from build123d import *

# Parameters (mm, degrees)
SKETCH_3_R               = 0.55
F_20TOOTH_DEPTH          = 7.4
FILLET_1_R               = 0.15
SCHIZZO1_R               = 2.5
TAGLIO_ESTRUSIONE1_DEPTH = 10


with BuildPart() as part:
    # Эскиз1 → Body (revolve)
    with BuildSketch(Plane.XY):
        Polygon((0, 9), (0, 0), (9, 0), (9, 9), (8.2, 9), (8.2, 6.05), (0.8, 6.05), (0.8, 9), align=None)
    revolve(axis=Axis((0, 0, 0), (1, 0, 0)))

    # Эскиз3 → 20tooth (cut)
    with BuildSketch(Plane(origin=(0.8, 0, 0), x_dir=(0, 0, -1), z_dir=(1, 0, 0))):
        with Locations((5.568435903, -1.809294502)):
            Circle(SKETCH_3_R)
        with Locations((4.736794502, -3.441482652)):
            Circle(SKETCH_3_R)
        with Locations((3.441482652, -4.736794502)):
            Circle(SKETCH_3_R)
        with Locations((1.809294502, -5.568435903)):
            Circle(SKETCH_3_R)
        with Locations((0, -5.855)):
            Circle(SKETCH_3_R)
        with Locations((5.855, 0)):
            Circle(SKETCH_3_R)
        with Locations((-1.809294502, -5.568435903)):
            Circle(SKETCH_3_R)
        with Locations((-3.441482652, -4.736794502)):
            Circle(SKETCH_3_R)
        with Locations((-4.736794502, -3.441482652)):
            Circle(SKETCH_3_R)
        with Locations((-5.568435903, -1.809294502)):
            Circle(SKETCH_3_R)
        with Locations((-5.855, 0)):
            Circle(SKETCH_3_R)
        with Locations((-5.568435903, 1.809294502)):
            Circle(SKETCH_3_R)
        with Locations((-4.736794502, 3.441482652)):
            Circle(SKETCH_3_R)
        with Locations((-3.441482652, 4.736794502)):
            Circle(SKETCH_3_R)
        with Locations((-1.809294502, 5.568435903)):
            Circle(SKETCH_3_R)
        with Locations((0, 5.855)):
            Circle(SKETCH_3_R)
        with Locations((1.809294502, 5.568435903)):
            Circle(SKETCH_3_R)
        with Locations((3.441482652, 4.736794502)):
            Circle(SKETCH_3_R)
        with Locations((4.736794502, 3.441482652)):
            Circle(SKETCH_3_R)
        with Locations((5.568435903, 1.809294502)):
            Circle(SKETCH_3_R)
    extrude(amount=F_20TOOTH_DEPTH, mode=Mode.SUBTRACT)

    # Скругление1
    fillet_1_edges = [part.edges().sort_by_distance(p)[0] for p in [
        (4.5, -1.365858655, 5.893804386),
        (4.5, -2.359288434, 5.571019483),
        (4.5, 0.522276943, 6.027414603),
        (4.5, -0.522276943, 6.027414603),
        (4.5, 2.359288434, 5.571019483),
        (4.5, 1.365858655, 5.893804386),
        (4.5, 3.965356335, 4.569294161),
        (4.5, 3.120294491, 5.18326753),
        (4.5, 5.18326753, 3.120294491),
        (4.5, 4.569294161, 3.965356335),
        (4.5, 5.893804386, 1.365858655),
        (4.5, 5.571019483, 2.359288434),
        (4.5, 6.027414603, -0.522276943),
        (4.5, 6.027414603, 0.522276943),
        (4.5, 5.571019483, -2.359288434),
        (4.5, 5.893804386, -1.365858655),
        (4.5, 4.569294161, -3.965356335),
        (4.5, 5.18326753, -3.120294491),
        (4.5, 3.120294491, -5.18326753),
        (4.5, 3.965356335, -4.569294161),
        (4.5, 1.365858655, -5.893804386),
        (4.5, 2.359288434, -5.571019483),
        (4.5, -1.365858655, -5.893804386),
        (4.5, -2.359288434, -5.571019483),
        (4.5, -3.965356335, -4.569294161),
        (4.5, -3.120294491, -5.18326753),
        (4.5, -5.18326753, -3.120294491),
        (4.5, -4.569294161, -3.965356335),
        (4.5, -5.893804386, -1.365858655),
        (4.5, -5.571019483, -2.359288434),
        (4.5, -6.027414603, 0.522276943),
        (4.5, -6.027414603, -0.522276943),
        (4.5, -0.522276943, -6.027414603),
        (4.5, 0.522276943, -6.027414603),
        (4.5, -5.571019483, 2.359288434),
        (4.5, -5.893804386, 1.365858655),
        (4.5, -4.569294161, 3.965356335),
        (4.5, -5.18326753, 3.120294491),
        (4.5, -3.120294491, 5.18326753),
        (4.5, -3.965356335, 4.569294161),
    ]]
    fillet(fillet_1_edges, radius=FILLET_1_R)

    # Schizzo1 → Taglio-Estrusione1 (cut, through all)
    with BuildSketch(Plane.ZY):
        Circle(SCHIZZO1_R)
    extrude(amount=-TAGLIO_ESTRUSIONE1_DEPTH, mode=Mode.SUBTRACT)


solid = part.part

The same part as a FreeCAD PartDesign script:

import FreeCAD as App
import Part
import Sketcher

V = App.Vector
Q = App.Units.Quantity


def edges_at(feature, points):
    """Names of the edges that pass closest to the given points."""
    edges = feature.Shape.Edges
    near = lambda p: min(range(len(edges)), key=lambda i: edges[i].distToShape(Part.Vertex(*p))[0])
    return sorted({f"Edge{near(p) + 1}" for p in points})

doc = App.newDocument("Part")
body = doc.addObject("PartDesign::Body", "Body")

# Sketch on XY plane
sketch1 = doc.addObject("Sketcher::SketchObject", "Sketch")
body.addObject(sketch1)
sketch1.AttachmentSupport = (doc.XY_Plane, [""])
sketch1.MapMode = "FlatFace"
sketch1.addGeometry(Part.LineSegment(V(0, 9, 0), V(0, 0, 0)), False)
sketch1.addGeometry(Part.LineSegment(V(0, 0, 0), V(9, 0, 0)), False)
sketch1.addGeometry(Part.LineSegment(V(9, 0, 0), V(9, 9, 0)), False)
sketch1.addGeometry(Part.LineSegment(V(9, 9, 0), V(8.2, 9, 0)), False)
sketch1.addGeometry(Part.LineSegment(V(8.2, 9, 0), V(8.2, 6, 0)), False)
sketch1.addGeometry(Part.LineSegment(V(8.2, 6, 0), V(0.8, 6, 0)), False)
sketch1.addGeometry(Part.LineSegment(V(0.8, 6, 0), V(0.8, 9, 0)), False)
sketch1.addGeometry(Part.LineSegment(V(0.8, 9, 0), V(0, 9, 0)), False)
sketch1.addConstraint(Sketcher.Constraint("Coincident", 0, 2, 1, 1))
sketch1.addConstraint(Sketcher.Constraint("Coincident", 1, 2, 2, 1))
sketch1.addConstraint(Sketcher.Constraint("Coincident", 2, 2, 3, 1))
sketch1.addConstraint(Sketcher.Constraint("Coincident", 3, 2, 4, 1))
sketch1.addConstraint(Sketcher.Constraint("Coincident", 4, 2, 5, 1))
sketch1.addConstraint(Sketcher.Constraint("Coincident", 5, 2, 6, 1))
sketch1.addConstraint(Sketcher.Constraint("Coincident", 6, 2, 7, 1))
sketch1.addConstraint(Sketcher.Constraint("Coincident", 7, 2, 0, 1))
sketch1.addConstraint(Sketcher.Constraint("Vertical", 0))
sketch1.addConstraint(Sketcher.Constraint("Horizontal", 1))
sketch1.addConstraint(Sketcher.Constraint("Vertical", 2))
sketch1.addConstraint(Sketcher.Constraint("Horizontal", 3))
sketch1.addConstraint(Sketcher.Constraint("Vertical", 4))
sketch1.addConstraint(Sketcher.Constraint("Horizontal", 5))
sketch1.addConstraint(Sketcher.Constraint("Vertical", 6))
sketch1.addConstraint(Sketcher.Constraint("Horizontal", 7))
sketch1.addConstraint(Sketcher.Constraint("Coincident", 0, 2, -1, 1))
sketch1.addConstraint(Sketcher.Constraint("Horizontal", 3, 2, 6, 2))
sketch1.addConstraint(Sketcher.Constraint("Equal", 3, 7))
sketch1.addConstraint(Sketcher.Constraint("Equal", 1, 0))
sketch1.addConstraint(Sketcher.Constraint("DistanceX", 1, 1, 1, 2, Q("9 mm")))
sketch1.addConstraint(Sketcher.Constraint("DistanceX", 3, 2, 3, 1, Q("0.8 mm")))
sketch1.addConstraint(Sketcher.Constraint("DistanceY", 4, 2, 4, 1, Q("2.95 mm")))
revolution = doc.addObject("PartDesign::Revolution", "Revolution")
body.addObject(revolution)
revolution.Profile = sketch1
revolution.ReferenceAxis = (sketch1, ["H_Axis"])
revolution.Angle = 360

# Sketch on YZ plane
sketch2 = doc.addObject("Sketcher::SketchObject", "Sketch001")
body.addObject(sketch2)
sketch2.AttachmentSupport = (doc.YZ_Plane, [""])
sketch2.MapMode = "FlatFace"
sketch2.AttachmentOffset = App.Placement(V(0, 0, 0.8), App.Rotation())
sketch2.addGeometry(Part.Circle(V(-1.8, -5.6, 0), V(0, 0, 1), 0.6), False)
sketch2.addGeometry(Part.Circle(V(-3.4, -4.7, 0), V(0, 0, 1), 0.6), False)
sketch2.addGeometry(Part.Circle(V(-4.7, -3.4, 0), V(0, 0, 1), 0.6), False)
sketch2.addGeometry(Part.Circle(V(-5.6, -1.8, 0), V(0, 0, 1), 0.6), False)
sketch2.addGeometry(Part.Circle(V(-5.9, 0, 0), V(0, 0, 1), 0.6), False)
sketch2.addGeometry(Part.Circle(V(0, -5.9, 0), V(0, 0, 1), 0.6), False)
sketch2.addGeometry(Part.Circle(V(-5.6, 1.8, 0), V(0, 0, 1), 0.6), False)
sketch2.addGeometry(Part.Circle(V(-4.7, 3.4, 0), V(0, 0, 1), 0.6), False)
sketch2.addGeometry(Part.Circle(V(-3.4, 4.7, 0), V(0, 0, 1), 0.6), False)
sketch2.addGeometry(Part.Circle(V(-1.8, 5.6, 0), V(0, 0, 1), 0.6), False)
sketch2.addGeometry(Part.Circle(V(0, 5.9, 0), V(0, 0, 1), 0.6), False)
sketch2.addGeometry(Part.Circle(V(1.8, 5.6, 0), V(0, 0, 1), 0.6), False)
sketch2.addGeometry(Part.Circle(V(3.4, 4.7, 0), V(0, 0, 1), 0.6), False)
sketch2.addGeometry(Part.Circle(V(4.7, 3.4, 0), V(0, 0, 1), 0.6), False)
sketch2.addGeometry(Part.Circle(V(5.6, 1.8, 0), V(0, 0, 1), 0.6), False)
sketch2.addGeometry(Part.Circle(V(5.9, 0, 0), V(0, 0, 1), 0.6), False)
sketch2.addGeometry(Part.Circle(V(5.6, -1.8, 0), V(0, 0, 1), 0.6), False)
sketch2.addGeometry(Part.Circle(V(4.7, -3.4, 0), V(0, 0, 1), 0.6), False)
sketch2.addGeometry(Part.Circle(V(3.4, -4.7, 0), V(0, 0, 1), 0.6), False)
sketch2.addGeometry(Part.Circle(V(1.8, -5.6, 0), V(0, 0, 1), 0.6), False)
sketch2.addConstraint(Sketcher.Constraint("Equal", 0, 1))
sketch2.addConstraint(Sketcher.Constraint("Equal", 1, 2))
sketch2.addConstraint(Sketcher.Constraint("Equal", 2, 3))
sketch2.addConstraint(Sketcher.Constraint("Equal", 3, 4))
sketch2.addConstraint(Sketcher.Constraint("Equal", 4, 5))
sketch2.addConstraint(Sketcher.Constraint("Equal", 5, 6))
sketch2.addConstraint(Sketcher.Constraint("Equal", 6, 7))
sketch2.addConstraint(Sketcher.Constraint("Equal", 7, 8))
sketch2.addConstraint(Sketcher.Constraint("Equal", 8, 9))
sketch2.addConstraint(Sketcher.Constraint("Equal", 9, 10))
sketch2.addConstraint(Sketcher.Constraint("Equal", 10, 11))
sketch2.addConstraint(Sketcher.Constraint("Equal", 11, 12))
sketch2.addConstraint(Sketcher.Constraint("Equal", 12, 13))
sketch2.addConstraint(Sketcher.Constraint("Equal", 13, 14))
sketch2.addConstraint(Sketcher.Constraint("Equal", 14, 15))
sketch2.addConstraint(Sketcher.Constraint("Equal", 15, 16))
sketch2.addConstraint(Sketcher.Constraint("Equal", 16, 17))
sketch2.addConstraint(Sketcher.Constraint("Equal", 17, 18))
sketch2.addConstraint(Sketcher.Constraint("Equal", 18, 19))
sketch2.addConstraint(Sketcher.Constraint("Symmetric", 5, 3, 10, 3, -1, 1))
sketch2.addConstraint(Sketcher.Constraint("Symmetric", 0, 3, 11, 3, -1, 1))
sketch2.addConstraint(Sketcher.Constraint("Symmetric", 1, 3, 12, 3, -1, 1))
sketch2.addConstraint(Sketcher.Constraint("Symmetric", 2, 3, 13, 3, -1, 1))
sketch2.addConstraint(Sketcher.Constraint("Symmetric", 3, 3, 14, 3, -1, 1))
sketch2.addConstraint(Sketcher.Constraint("Symmetric", 4, 3, 15, 3, -1, 1))
sketch2.addConstraint(Sketcher.Constraint("Symmetric", 6, 3, 16, 3, -1, 1))
sketch2.addConstraint(Sketcher.Constraint("Symmetric", 7, 3, 17, 3, -1, 1))
sketch2.addConstraint(Sketcher.Constraint("Symmetric", 8, 3, 18, 3, -1, 1))
sketch2.addConstraint(Sketcher.Constraint("Symmetric", 9, 3, 19, 3, -1, 1))
sketch2.addConstraint(Sketcher.Constraint("Symmetric", 9, 3, 11, 3, -2))
sketch2.addConstraint(Sketcher.Constraint("Symmetric", 8, 3, 12, 3, -2))
sketch2.addConstraint(Sketcher.Constraint("Symmetric", 7, 3, 13, 3, -2))
sketch2.addConstraint(Sketcher.Constraint("Symmetric", 6, 3, 14, 3, -2))
sketch2.addConstraint(Sketcher.Constraint("PointOnObject", 4, 3, -1))
sketch2.addConstraint(Sketcher.Constraint("PointOnObject", 5, 3, -2))
sketch2.addConstraint(Sketcher.Constraint("Diameter", 0, Q("1.1 mm")))
sketch2.addConstraint(Sketcher.Constraint("DistanceX", 4, 3, -1, 1, Q("5.855 mm")))
sketch2.addConstraint(Sketcher.Constraint("DistanceY", 5, 3, -1, 1, Q("5.855 mm")))
sketch2.addConstraint(Sketcher.Constraint("DistanceX", 2, 3, 0, 3, Q("2.9275 mm")))
sketch2.addConstraint(Sketcher.Constraint("DistanceY", 1, 3, 3, 3, Q("2.9275 mm")))
sketch2.addConstraint(Sketcher.Constraint("DistanceX", 1, 3, 0, 3, Q("1.632188 mm")))
sketch2.addConstraint(Sketcher.Constraint("DistanceY", 0, 3, 1, 3, Q("0.831641 mm")))
sketch2.addConstraint(Sketcher.Constraint("DistanceY", 1, 3, 2, 3, Q("1.295312 mm")))
sketch2.addConstraint(Sketcher.Constraint("DistanceX", 3, 3, 2, 3, Q("0.831641 mm")))
sketch2.addConstraint(Sketcher.Constraint("DistanceY", 3, 3, 6, 3, Q("3.618589 mm")))
sketch2.addConstraint(Sketcher.Constraint("DistanceX", 9, 3, 11, 3, Q("3.618589 mm")))
pocket1 = doc.addObject("PartDesign::Pocket", "Pocket")
body.addObject(pocket1)
pocket1.Profile = sketch2
pocket1.Length = 7.4
pocket1.Reversed = True
doc.recompute()

fillet = doc.addObject("PartDesign::Fillet", "Fillet")
body.addObject(fillet)
fillet.Base = (pocket1, edges_at(pocket1, [
    (4.5, -1.366, 5.894),
    (4.5, -2.359, 5.571),
    (4.5, 0.522, 6.027),
    (4.5, -0.522, 6.027),
    (4.5, 2.359, 5.571),
    (4.5, 1.366, 5.894),
    (4.5, 3.965, 4.569),
    (4.5, 3.12, 5.183),
    (4.5, 5.183, 3.12),
    (4.5, 4.569, 3.965),
    (4.5, 5.894, 1.366),
    (4.5, 5.571, 2.359),
    (4.5, 6.027, -0.522),
    (4.5, 6.027, 0.522),
    (4.5, 5.571, -2.359),
    (4.5, 5.894, -1.366),
    (4.5, 4.569, -3.965),
    (4.5, 5.183, -3.12),
    (4.5, 3.12, -5.183),
    (4.5, 3.965, -4.569),
    (4.5, 1.366, -5.894),
    (4.5, 2.359, -5.571),
    (4.5, -1.366, -5.894),
    (4.5, -2.359, -5.571),
    (4.5, -3.965, -4.569),
    (4.5, -3.12, -5.183),
    (4.5, -5.183, -3.12),
    (4.5, -4.569, -3.965),
    (4.5, -5.894, -1.366),
    (4.5, -5.571, -2.359),
    (4.5, -6.027, 0.522),
    (4.5, -6.027, -0.522),
    (4.5, -0.522, -6.027),
    (4.5, 0.522, -6.027),
    (4.5, -5.571, 2.359),
    (4.5, -5.894, 1.366),
    (4.5, -4.569, 3.965),
    (4.5, -5.183, 3.12),
    (4.5, -3.12, 5.183),
    (4.5, -3.965, 4.569),
]))
fillet.Radius = 0.15

# Sketch on YZ plane
sketch3 = doc.addObject("Sketcher::SketchObject", "Sketch002")
body.addObject(sketch3)
sketch3.AttachmentSupport = (doc.YZ_Plane, [""])
sketch3.MapMode = "FlatFace"
sketch3.addGeometry(Part.Circle(V(0, 0, 0), V(0, 0, 1), 2.5), False)
sketch3.addConstraint(Sketcher.Constraint("Coincident", 0, 3, -1, 1))
sketch3.addConstraint(Sketcher.Constraint("Diameter", 0, Q("5 mm")))
pocket2 = doc.addObject("PartDesign::Pocket", "Pocket001")
body.addObject(pocket2)
pocket2.Profile = sketch3
pocket2.Type = "ThroughAll"
pocket2.Reversed = True

doc.recompute()
